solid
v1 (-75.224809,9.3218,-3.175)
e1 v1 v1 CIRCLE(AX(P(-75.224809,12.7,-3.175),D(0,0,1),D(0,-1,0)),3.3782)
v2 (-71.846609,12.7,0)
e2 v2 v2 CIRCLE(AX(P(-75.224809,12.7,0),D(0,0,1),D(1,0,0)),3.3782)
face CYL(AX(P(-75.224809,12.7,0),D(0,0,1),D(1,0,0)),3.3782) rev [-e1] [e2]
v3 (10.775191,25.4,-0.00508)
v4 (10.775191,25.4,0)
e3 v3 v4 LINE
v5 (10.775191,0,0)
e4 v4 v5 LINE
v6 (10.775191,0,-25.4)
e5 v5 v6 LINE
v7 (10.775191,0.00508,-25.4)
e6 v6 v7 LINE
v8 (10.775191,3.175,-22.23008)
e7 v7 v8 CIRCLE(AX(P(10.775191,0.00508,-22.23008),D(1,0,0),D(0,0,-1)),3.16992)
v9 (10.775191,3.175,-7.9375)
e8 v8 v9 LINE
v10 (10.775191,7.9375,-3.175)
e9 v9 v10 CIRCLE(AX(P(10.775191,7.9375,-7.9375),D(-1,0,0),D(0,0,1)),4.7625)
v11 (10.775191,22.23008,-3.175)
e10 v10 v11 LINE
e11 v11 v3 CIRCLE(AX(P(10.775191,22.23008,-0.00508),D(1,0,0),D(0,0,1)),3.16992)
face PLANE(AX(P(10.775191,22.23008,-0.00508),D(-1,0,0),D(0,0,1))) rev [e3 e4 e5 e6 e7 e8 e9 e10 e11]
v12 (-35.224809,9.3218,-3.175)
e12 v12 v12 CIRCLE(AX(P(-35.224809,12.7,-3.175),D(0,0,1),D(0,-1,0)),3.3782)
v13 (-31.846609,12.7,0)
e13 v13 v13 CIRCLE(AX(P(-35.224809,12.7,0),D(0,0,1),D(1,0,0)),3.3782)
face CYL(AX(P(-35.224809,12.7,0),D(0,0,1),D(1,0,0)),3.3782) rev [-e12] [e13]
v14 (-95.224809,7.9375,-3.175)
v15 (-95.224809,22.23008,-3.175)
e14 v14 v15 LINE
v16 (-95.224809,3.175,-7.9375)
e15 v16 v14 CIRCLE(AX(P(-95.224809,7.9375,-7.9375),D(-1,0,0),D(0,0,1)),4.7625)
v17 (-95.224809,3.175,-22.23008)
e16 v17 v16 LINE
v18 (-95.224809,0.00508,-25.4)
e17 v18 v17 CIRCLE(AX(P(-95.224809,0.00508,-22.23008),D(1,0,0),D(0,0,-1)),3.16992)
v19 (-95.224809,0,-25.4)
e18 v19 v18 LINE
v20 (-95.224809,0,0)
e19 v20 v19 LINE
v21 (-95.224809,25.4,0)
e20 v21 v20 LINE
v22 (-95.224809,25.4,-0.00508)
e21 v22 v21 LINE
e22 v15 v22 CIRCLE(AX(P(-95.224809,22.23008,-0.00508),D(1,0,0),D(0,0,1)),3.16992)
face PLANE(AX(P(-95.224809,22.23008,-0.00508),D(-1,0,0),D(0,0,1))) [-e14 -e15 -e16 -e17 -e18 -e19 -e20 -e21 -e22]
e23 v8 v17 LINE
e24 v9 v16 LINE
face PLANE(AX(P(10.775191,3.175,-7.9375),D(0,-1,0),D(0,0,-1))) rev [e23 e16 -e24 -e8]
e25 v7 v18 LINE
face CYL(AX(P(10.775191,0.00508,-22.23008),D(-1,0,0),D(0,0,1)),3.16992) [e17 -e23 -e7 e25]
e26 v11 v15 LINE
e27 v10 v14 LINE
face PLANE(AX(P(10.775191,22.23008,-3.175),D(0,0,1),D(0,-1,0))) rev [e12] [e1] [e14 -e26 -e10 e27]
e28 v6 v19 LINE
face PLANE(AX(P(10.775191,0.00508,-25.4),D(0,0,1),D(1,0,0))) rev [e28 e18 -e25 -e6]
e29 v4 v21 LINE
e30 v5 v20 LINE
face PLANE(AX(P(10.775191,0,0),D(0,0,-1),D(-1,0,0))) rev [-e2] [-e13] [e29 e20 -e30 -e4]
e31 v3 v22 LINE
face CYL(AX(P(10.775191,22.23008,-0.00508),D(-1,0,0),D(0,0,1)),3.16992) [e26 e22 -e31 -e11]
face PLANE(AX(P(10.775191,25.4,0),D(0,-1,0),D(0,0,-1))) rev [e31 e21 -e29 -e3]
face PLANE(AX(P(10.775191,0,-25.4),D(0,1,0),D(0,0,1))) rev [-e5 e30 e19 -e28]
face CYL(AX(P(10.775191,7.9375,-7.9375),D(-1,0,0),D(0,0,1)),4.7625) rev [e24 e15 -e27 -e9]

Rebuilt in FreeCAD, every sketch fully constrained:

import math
import FreeCAD as App
import Part
import Sketcher
Q = App.Units.Quantity

doc = App.newDocument("Part")
body = doc.addObject("PartDesign::Body", "Body")

# Sketch on YZ plane
sketch1 = body.newObject("Sketcher::SketchObject", "Sketch")
sketch1.AttachmentSupport = (doc.getObject("YZ_Plane"), [""])
sketch1.MapMode = "FlatFace"
sketch1.AttachmentOffset = App.Placement(App.Vector(0, 0, -95.224809), App.Rotation())
sketch1.addGeometry([
    Part.LineSegment(App.Vector(25.4, 0, 0), App.Vector(0, 0, 0)),  # 0
    Part.LineSegment(App.Vector(0, 0, 0), App.Vector(0, -25.4, 0)),  # 1
    Part.LineSegment(App.Vector(0, -25.4, 0), App.Vector(0.005, -25.4, 0)),  # 2
    Part.ArcOfCircle(Part.Circle(App.Vector(0.005, -22.23, 0), App.Vector(0, 0, 1), 3.17), math.radians(-90), math.radians(0)),  # 3
    Part.LineSegment(App.Vector(3.175, -22.23, 0), App.Vector(3.175, -7.938, 0)),  # 4
    Part.ArcOfCircle(Part.Circle(App.Vector(7.938, -7.938, 0), App.Vector(0, 0, 1), 4.763), math.radians(90), math.radians(180)),  # 5
    Part.LineSegment(App.Vector(7.938, -3.175, 0), App.Vector(22.23, -3.175, 0)),  # 6
    Part.ArcOfCircle(Part.Circle(App.Vector(22.23, -0.005, 0), App.Vector(0, 0, 1), 3.17), math.radians(-90), math.radians(0)),  # 7
    Part.LineSegment(App.Vector(25.4, -0.005, 0), App.Vector(25.4, 0, 0)),  # 8
], False)
sketch1.addConstraint([
    Sketcher.Constraint("Coincident", 0, 2, 1, 1),
    Sketcher.Constraint("Coincident", 1, 2, 2, 1),
    Sketcher.Constraint("Tangent", 2, 2, 3, 1),
    Sketcher.Constraint("Tangent", 3, 2, 4, 1),
    Sketcher.Constraint("Tangent", 4, 2, 5, 2),
    Sketcher.Constraint("Tangent", 5, 1, 6, 1),
    Sketcher.Constraint("Tangent", 6, 2, 7, 1),
    Sketcher.Constraint("Tangent", 7, 2, 8, 1),
    Sketcher.Constraint("Coincident", 8, 2, 0, 1),
    Sketcher.Constraint("Horizontal", 0),
    Sketcher.Constraint("Vertical", 1),
    Sketcher.Constraint("Vertical", 4),
    Sketcher.Constraint("Horizontal", 6),
    Sketcher.Constraint("Coincident", 0, 2, -1, 1),
    Sketcher.Constraint("Equal", 3, 7),
    Sketcher.Constraint("Vertical", 3, 3, 2, 2),
    Sketcher.Constraint("Equal", 0, 1),
    Sketcher.Constraint("Equal", 6, 4),
    Sketcher.Constraint("Equal", 2, 8),
    Sketcher.Constraint("DistanceX", 0, 2, 0, 1, Q("1 in")),
    Sketcher.Constraint("Radius", 5, Q("0.1875 in")),
    Sketcher.Constraint("Radius", 3, Q("0.1248 in")),
    Sketcher.Constraint("DistanceX", 2, 1, 2, 2, Q("0.0002 in")),
])
pad1 = body.newObject("PartDesign::Pad", "Pad")
pad1.Profile = sketch1
pad1.Length = 106

# Sketch on XY plane
sketch2 = body.newObject("Sketcher::SketchObject", "Sketch001")
sketch2.AttachmentSupport = (doc.getObject("XY_Plane"), [""])
sketch2.MapMode = "FlatFace"
sketch2.addGeometry([
    Part.Circle(App.Vector(-35.2, 12.7, 0), App.Vector(0, 0, 1), 3.4),
    Part.Circle(App.Vector(-75.2, 12.7, 0), App.Vector(0, 0, 1), 3.4),
], False)
sketch2.addConstraint([
    Sketcher.Constraint("Equal", 0, 1),
    Sketcher.Constraint("Horizontal", 0, 3, 1, 3),
    Sketcher.Constraint("Diameter", 0, Q("0.266 in")),
    Sketcher.Constraint("DistanceY", -1, 1, 0, 3, Q("0.5 in")),
    Sketcher.Constraint("DistanceX", 1, 3, 0, 3, 40.0),
    Sketcher.Constraint("DistanceX", 0, 3, -1, 1, 35.224809),
])
doc.recompute()
hole = body.newObject("PartDesign::Hole", "Hole")
hole.Profile = sketch2
hole.ThreadType = "None"
hole.Diameter = Q("0.266 in")
hole.DepthType = "ThroughAll"

doc.recompute()
